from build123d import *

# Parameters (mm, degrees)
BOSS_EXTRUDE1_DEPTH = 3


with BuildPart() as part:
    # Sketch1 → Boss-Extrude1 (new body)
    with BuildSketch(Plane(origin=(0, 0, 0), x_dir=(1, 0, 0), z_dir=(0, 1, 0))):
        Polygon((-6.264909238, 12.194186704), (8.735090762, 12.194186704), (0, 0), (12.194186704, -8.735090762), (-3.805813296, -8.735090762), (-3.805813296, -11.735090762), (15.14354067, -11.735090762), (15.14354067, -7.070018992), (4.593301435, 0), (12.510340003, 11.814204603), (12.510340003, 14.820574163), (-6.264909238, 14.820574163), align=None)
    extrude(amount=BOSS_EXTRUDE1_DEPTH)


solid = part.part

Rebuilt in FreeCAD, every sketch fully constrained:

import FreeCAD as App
import Part
import Sketcher
from FreeCAD import Vector
Q = App.Units.Quantity

doc = App.newDocument("Part")
body = doc.addObject("PartDesign::Body", "Body")

sketch1 = body.newObject("Sketcher::SketchObject", "Sketch")
sketch1.AttachmentSupport = (doc.getObject("XZ_Plane"), [""])
sketch1.MapMode = "FlatFace"
sketch1.addGeometry([
    Part.LineSegment(Vector(-6.3, -12.2, 0), Vector(8.7, -12.2, 0)),
    Part.LineSegment(Vector(8.7, -12.2, 0), Vector(0, 0, 0)),
    Part.LineSegment(Vector(0, 0, 0), Vector(12.2, 8.7, 0)),
    Part.LineSegment(Vector(12.2, 8.7, 0), Vector(-3.8, 8.7, 0)),
    Part.LineSegment(Vector(-3.8, 8.7, 0), Vector(-3.8, 11.7, 0)),
    Part.LineSegment(Vector(-3.8, 11.7, 0), Vector(15.1, 11.7, 0)),
    Part.LineSegment(Vector(15.1, 11.7, 0), Vector(15.1, 7.1, 0)),
    Part.LineSegment(Vector(15.1, 7.1, 0), Vector(4.6, 0, 0)),
    Part.LineSegment(Vector(4.6, 0, 0), Vector(12.5, -11.8, 0)),
    Part.LineSegment(Vector(12.5, -11.8, 0), Vector(12.5, -14.8, 0)),
    Part.LineSegment(Vector(12.5, -14.8, 0), Vector(-6.3, -14.8, 0)),
    Part.LineSegment(Vector(-6.3, -14.8, 0), Vector(-6.3, -12.2, 0)),
], False)
sketch1.addConstraint([
    Sketcher.Constraint("Coincident", 0, 2, 1, 1),
    Sketcher.Constraint("Coincident", 1, 2, 2, 1),
    Sketcher.Constraint("Coincident", 2, 2, 3, 1),
    Sketcher.Constraint("Coincident", 3, 2, 4, 1),
    Sketcher.Constraint("Coincident", 4, 2, 5, 1),
    Sketcher.Constraint("Coincident", 5, 2, 6, 1),
    Sketcher.Constraint("Coincident", 6, 2, 7, 1),
    Sketcher.Constraint("Coincident", 7, 2, 8, 1),
    Sketcher.Constraint("Coincident", 8, 2, 9, 1),
    Sketcher.Constraint("Coincident", 9, 2, 10, 1),
    Sketcher.Constraint("Coincident", 10, 2, 11, 1),
    Sketcher.Constraint("Coincident", 11, 2, 0, 1),
    Sketcher.Constraint("Horizontal", 0),
    Sketcher.Constraint("Horizontal", 3),
    Sketcher.Constraint("Vertical", 4),
    Sketcher.Constraint("Horizontal", 5),
    Sketcher.Constraint("Vertical", 6),
    Sketcher.Constraint("Vertical", 9),
    Sketcher.Constraint("Horizontal", 10),
    Sketcher.Constraint("Vertical", 11),
    Sketcher.Constraint("Coincident", 1, 2, -1, 1),
    Sketcher.Constraint("PointOnObject", 7, 2, -1),
    Sketcher.Constraint("Perpendicular", 1, 2),
    Sketcher.Constraint("Perpendicular", 7, 8),
    Sketcher.Constraint("Equal", 1, 2),
    Sketcher.Constraint("DistanceX", 0, 1, 0, 2, Q("15 mm")),
    Sketcher.Constraint("DistanceX", 3, 2, 3, 1, Q("16 mm")),
    Sketcher.Constraint("DistanceY", 4, 1, 4, 2, Q("3 mm")),
    Sketcher.Constraint("Distance", 1, Q("15 mm")),
    Sketcher.Constraint("DistanceX", 10, 2, 10, 1, Q("18.775249 mm")),
    Sketcher.Constraint("DistanceY", 6, 2, 6, 1, Q("4.665072 mm")),
    Sketcher.Constraint("DistanceY", 9, 2, 9, 1, Q("3.00637 mm")),
    Sketcher.Constraint("DistanceX", -1, 1, 7, 2, Q("4.593301 mm")),
    Sketcher.Constraint("DistanceX", 8, 2, 6, 2, Q("2.633201 mm")),
    Sketcher.Constraint("DistanceX", 5, 1, 5, 2, Q("18.949354 mm")),
])
pad1 = body.newObject("PartDesign::Pad", "Pad")
pad1.Profile = sketch1
pad1.Length = 3
pad1.Reversed = True

doc.recompute()
